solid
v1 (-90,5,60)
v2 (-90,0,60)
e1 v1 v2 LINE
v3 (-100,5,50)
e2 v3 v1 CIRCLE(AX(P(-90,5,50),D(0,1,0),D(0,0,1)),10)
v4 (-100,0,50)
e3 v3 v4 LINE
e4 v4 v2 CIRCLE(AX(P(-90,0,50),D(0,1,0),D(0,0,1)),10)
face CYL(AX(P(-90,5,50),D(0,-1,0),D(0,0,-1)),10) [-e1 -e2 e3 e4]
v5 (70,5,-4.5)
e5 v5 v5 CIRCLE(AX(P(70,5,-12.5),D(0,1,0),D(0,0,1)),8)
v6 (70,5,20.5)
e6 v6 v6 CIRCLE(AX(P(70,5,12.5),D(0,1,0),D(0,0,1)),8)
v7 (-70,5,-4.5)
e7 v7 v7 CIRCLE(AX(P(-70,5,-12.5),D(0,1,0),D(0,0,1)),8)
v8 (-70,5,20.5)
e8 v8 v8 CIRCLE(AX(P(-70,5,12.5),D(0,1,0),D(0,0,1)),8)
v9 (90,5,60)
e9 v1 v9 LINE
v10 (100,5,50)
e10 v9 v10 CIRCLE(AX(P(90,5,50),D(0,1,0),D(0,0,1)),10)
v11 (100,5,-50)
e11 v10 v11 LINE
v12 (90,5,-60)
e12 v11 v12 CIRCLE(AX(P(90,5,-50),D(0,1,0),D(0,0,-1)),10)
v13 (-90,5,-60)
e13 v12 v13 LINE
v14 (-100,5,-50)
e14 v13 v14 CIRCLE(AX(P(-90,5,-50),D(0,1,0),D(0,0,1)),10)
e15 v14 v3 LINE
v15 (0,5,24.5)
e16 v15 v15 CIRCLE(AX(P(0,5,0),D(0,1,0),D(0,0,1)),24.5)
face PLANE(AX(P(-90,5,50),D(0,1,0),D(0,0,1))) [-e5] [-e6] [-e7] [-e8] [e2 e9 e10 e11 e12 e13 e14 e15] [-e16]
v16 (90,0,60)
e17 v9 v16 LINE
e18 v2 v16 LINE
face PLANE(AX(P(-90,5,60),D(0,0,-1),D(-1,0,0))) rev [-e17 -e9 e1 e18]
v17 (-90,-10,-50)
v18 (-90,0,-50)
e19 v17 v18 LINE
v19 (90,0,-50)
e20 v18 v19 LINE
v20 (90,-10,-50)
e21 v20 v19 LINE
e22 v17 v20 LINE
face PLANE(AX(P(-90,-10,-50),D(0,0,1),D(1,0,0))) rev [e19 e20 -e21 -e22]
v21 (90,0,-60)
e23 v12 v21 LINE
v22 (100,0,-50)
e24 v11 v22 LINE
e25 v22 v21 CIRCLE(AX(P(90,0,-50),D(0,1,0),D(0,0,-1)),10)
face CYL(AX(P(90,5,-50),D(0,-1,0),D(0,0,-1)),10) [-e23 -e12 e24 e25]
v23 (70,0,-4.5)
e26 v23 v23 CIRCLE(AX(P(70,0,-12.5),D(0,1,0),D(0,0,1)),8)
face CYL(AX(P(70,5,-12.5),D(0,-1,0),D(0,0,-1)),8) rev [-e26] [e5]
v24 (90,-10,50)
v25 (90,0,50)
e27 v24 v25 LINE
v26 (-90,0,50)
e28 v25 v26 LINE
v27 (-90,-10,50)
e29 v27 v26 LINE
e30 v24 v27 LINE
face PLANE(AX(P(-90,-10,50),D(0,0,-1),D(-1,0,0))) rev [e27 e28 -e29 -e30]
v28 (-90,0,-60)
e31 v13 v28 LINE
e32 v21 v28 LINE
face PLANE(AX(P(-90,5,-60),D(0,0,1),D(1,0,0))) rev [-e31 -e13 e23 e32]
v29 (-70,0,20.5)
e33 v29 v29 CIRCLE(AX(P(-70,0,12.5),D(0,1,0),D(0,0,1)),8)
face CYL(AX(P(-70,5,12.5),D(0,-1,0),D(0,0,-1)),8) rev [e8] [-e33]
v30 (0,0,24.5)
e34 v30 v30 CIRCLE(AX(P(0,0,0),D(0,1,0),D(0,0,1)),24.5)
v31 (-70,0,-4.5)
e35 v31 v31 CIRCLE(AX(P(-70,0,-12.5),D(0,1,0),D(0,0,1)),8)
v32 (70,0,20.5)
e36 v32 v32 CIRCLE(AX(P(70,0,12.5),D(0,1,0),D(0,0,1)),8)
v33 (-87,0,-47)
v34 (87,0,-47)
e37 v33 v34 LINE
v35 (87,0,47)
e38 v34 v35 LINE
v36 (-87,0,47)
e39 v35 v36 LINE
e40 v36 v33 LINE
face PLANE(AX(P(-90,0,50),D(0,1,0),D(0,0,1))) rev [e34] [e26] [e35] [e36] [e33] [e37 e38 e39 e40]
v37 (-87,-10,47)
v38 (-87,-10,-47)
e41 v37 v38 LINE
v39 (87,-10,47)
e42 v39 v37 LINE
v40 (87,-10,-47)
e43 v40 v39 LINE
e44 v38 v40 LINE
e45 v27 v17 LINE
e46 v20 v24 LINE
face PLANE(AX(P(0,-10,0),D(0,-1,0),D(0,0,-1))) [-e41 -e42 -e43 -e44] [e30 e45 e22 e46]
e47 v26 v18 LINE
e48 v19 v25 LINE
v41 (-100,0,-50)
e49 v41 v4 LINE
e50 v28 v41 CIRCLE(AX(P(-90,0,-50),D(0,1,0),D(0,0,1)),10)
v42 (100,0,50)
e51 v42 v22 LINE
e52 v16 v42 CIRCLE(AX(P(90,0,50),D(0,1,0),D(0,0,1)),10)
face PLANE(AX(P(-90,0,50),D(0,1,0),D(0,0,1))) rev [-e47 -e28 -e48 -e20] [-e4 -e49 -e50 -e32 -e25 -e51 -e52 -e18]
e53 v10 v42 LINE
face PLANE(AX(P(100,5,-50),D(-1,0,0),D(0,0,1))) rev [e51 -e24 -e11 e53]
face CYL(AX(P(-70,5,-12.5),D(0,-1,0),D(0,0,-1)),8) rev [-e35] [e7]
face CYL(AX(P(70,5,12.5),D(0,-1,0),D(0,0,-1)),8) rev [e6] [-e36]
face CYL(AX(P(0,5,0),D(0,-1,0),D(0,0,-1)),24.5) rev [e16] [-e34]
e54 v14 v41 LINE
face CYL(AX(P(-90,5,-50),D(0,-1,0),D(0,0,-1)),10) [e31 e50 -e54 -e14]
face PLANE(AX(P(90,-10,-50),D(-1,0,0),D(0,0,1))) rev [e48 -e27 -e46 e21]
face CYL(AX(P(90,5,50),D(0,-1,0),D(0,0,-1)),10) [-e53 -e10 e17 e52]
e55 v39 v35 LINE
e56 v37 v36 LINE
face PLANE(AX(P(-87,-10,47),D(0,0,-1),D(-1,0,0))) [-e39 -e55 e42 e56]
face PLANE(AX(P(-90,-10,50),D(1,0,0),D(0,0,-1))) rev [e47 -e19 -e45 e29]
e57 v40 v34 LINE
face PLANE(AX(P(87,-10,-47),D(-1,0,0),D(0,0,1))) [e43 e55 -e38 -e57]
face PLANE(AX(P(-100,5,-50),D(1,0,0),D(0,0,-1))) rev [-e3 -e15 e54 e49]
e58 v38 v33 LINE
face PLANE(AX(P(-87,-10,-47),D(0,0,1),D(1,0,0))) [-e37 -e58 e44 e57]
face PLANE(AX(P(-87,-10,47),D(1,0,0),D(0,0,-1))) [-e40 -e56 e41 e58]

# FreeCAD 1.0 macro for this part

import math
import FreeCAD as App
import Part
import Sketcher

V = App.Vector
Q = App.Units.Quantity

doc = App.newDocument("Part")
body = doc.addObject("PartDesign::Body", "Body")

# Sketch on XZ plane
sketch1 = doc.addObject("Sketcher::SketchObject", "Sketch")
body.addObject(sketch1)
sketch1.AttachmentSupport = (doc.XZ_Plane, [""])
sketch1.MapMode = "FlatFace"
sketch1.addGeometry([
    Part.LineSegment(V(90, -60, 0), V(-90, -60, 0)),  # 0
    Part.ArcOfCircle(Part.Circle(V(-90, -50, 0), V(0, 0, 1), 10), math.radians(180), math.radians(270)),  # 1
    Part.LineSegment(V(-100, -50, 0), V(-100, 50, 0)),  # 2
    Part.ArcOfCircle(Part.Circle(V(-90, 50, 0), V(0, 0, 1), 10), math.radians(90), math.radians(180)),  # 3
    Part.LineSegment(V(-90, 60, 0), V(90, 60, 0)),  # 4
    Part.ArcOfCircle(Part.Circle(V(90, 50, 0), V(0, 0, 1), 10), math.radians(0), math.radians(90)),  # 5
    Part.LineSegment(V(100, 50, 0), V(100, -50, 0)),  # 6
    Part.ArcOfCircle(Part.Circle(V(90, -50, 0), V(0, 0, 1), 10), math.radians(-90), math.radians(0)),  # 7
    Part.Circle(V(70, 12, 0), V(0, 0, 1), 8),  # 8
    Part.Circle(V(-70, 12, 0), V(0, 0, 1), 8),  # 9
    Part.Circle(V(0, 0, 0), V(0, 0, 1), 24),  # 10
    Part.Circle(V(70, -12, 0), V(0, 0, 1), 8),  # 11
    Part.Circle(V(-70, -12, 0), V(0, 0, 1), 8),  # 12
], False)
sketch1.addConstraint([
    Sketcher.Constraint("Tangent", 0, 2, 1, 2),
    Sketcher.Constraint("Tangent", 1, 1, 2, 1),
    Sketcher.Constraint("Tangent", 2, 2, 3, 2),
    Sketcher.Constraint("Tangent", 3, 1, 4, 1),
    Sketcher.Constraint("Tangent", 4, 2, 5, 2),
    Sketcher.Constraint("Tangent", 5, 1, 6, 1),
    Sketcher.Constraint("Tangent", 6, 2, 7, 2),
    Sketcher.Constraint("Tangent", 7, 1, 0, 1),
    Sketcher.Constraint("Horizontal", 0),
    Sketcher.Constraint("Vertical", 2),
    Sketcher.Constraint("Horizontal", 4),
    Sketcher.Constraint("Vertical", 6),
    Sketcher.Constraint("Coincident", 10, 3, -1, 1),
    Sketcher.Constraint("Equal", 1, 3),
    Sketcher.Constraint("Equal", 3, 5),
    Sketcher.Constraint("Equal", 5, 7),
    Sketcher.Constraint("Equal", 8, 9),
    Sketcher.Constraint("Equal", 9, 11),
    Sketcher.Constraint("Equal", 11, 12),
    Sketcher.Constraint("Symmetric", 1, 3, 5, 3, -1, 1),
    Sketcher.Constraint("Symmetric", 9, 3, 11, 3, -1, 1),
    Sketcher.Constraint("Symmetric", 8, 3, 12, 3, -1, 1),
    Sketcher.Constraint("Symmetric", 8, 3, 9, 3, -2),
    Sketcher.Constraint("Diameter", 8, Q("16 mm")),
    Sketcher.Constraint("Diameter", 10, Q("49 mm")),
    Sketcher.Constraint("Radius", 1, Q("10 mm")),
    Sketcher.Constraint("DistanceX", 0, 2, 0, 1, Q("180 mm")),
    Sketcher.Constraint("DistanceY", 2, 1, 2, 2, Q("100 mm")),
    Sketcher.Constraint("DistanceX", -1, 1, 8, 3, Q("70 mm")),
    Sketcher.Constraint("DistanceY", 11, 3, 8, 3, Q("25 mm")),
])
pad1 = doc.addObject("PartDesign::Pad", "Pad")
body.addObject(pad1)
pad1.Profile = sketch1
pad1.Length = 5
pad1.Reversed = True

# Sketch on XZ plane
sketch2 = doc.addObject("Sketcher::SketchObject", "Sketch001")
body.addObject(sketch2)
sketch2.AttachmentSupport = (doc.XZ_Plane, [""])
sketch2.MapMode = "FlatFace"
sketch2.addGeometry([
    Part.LineSegment(V(-90, 50, 0), V(-90, -50, 0)),  # 0
    Part.LineSegment(V(-90, -50, 0), V(90, -50, 0)),  # 1
    Part.LineSegment(V(90, -50, 0), V(90, 50, 0)),  # 2
    Part.LineSegment(V(90, 50, 0), V(-90, 50, 0)),  # 3
    Part.LineSegment(V(87, -47, 0), V(-87, -47, 0)),  # 4
    Part.LineSegment(V(-87, -47, 0), V(-87, 47, 0)),  # 5
    Part.LineSegment(V(-87, 47, 0), V(87, 47, 0)),  # 6
    Part.LineSegment(V(87, 47, 0), V(87, -47, 0)),  # 7
], False)
sketch2.addConstraint([
    Sketcher.Constraint("Coincident", 0, 2, 1, 1),
    Sketcher.Constraint("Coincident", 1, 2, 2, 1),
    Sketcher.Constraint("Coincident", 2, 2, 3, 1),
    Sketcher.Constraint("Coincident", 3, 2, 0, 1),
    Sketcher.Constraint("Coincident", 4, 2, 5, 1),
    Sketcher.Constraint("Coincident", 5, 2, 6, 1),
    Sketcher.Constraint("Coincident", 6, 2, 7, 1),
    Sketcher.Constraint("Coincident", 7, 2, 4, 1),
    Sketcher.Constraint("Vertical", 0),
    Sketcher.Constraint("Horizontal", 1),
    Sketcher.Constraint("Vertical", 2),
    Sketcher.Constraint("Horizontal", 3),
    Sketcher.Constraint("Horizontal", 4),
    Sketcher.Constraint("Vertical", 5),
    Sketcher.Constraint("Horizontal", 6),
    Sketcher.Constraint("Vertical", 7),
    Sketcher.Constraint("Symmetric", 0, 2, 2, 2, -1, 1),
    Sketcher.Constraint("Symmetric", 4, 2, 6, 2, -1, 1),
    Sketcher.Constraint("DistanceX", 1, 1, 1, 2, Q("180 mm")),
    Sketcher.Constraint("DistanceX", 4, 2, 4, 1, Q("174 mm")),
    Sketcher.Constraint("DistanceY", 0, 2, 0, 1, Q("100 mm")),
    Sketcher.Constraint("DistanceY", 5, 1, 5, 2, Q("94 mm")),
])
pad2 = doc.addObject("PartDesign::Pad", "Pad001")
body.addObject(pad2)
pad2.Profile = sketch2
pad2.Length = 10

doc.recompute()
